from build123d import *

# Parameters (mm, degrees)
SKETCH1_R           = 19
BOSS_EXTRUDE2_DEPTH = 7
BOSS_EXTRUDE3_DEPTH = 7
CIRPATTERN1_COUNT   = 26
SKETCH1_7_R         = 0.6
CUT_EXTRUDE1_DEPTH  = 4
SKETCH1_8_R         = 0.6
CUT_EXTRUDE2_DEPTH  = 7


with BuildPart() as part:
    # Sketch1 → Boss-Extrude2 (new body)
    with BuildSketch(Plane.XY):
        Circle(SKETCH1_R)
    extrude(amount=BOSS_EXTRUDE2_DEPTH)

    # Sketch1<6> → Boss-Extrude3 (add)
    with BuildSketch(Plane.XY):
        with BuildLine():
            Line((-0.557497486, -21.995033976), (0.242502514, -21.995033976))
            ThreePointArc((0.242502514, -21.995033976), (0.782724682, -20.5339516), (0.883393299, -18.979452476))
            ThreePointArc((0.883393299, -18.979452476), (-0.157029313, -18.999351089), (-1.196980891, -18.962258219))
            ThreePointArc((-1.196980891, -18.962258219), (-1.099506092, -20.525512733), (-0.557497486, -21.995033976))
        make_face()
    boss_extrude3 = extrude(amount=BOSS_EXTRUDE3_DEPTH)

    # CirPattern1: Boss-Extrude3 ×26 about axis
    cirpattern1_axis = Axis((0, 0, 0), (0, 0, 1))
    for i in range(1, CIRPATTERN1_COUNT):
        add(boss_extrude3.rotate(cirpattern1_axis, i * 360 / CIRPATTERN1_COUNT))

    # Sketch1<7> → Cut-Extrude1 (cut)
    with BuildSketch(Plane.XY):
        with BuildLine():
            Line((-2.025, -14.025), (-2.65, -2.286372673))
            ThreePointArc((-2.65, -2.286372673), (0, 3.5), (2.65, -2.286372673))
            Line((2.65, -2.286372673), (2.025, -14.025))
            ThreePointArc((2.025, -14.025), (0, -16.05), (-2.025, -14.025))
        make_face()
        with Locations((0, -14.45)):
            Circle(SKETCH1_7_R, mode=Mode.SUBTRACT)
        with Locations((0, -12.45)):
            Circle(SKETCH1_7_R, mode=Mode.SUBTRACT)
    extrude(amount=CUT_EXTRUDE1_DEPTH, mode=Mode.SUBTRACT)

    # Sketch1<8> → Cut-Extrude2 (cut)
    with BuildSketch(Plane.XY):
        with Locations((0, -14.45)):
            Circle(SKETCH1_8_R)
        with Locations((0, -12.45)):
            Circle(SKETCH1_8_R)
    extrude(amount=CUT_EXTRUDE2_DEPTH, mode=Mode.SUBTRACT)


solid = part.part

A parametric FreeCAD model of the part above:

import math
import FreeCAD as App
import Part
import Sketcher

doc = App.newDocument("Part")
body = doc.addObject("PartDesign::Body", "Body")

sketch1 = body.newObject("Sketcher::SketchObject", "Sketch")
sketch1.AttachmentSupport = (doc.getObject("XY_Plane"), [""])
sketch1.MapMode = "FlatFace"
sketch1.addGeometry(Part.Circle(App.Vector(0, 0, 0), App.Vector(0, 0, 1), 19), False)
sketch1.addConstraint([
    Sketcher.Constraint("Coincident", 0, 3, -1, 1),
    Sketcher.Constraint("Diameter", 0, 38.0),
])
pad1 = body.newObject("PartDesign::Pad", "Pad")
pad1.Profile = sketch1
pad1.Length = 7

sketch2 = body.newObject("Sketcher::SketchObject", "Sketch001")
sketch2.AttachmentSupport = (doc.getObject("XY_Plane"), [""])
sketch2.MapMode = "FlatFace"
sketch2.addGeometry([
    Part.LineSegment(App.Vector(-0.6, -22, 0), App.Vector(0.2, -22, 0)),
    Part.ArcOfCircle(Part.Circle(App.Vector(-4.5, -19.4, 0), App.Vector(0, 0, 1), 5.4), math.radians(-29), math.radians(5)),
    Part.ArcOfCircle(Part.Circle(App.Vector(0, 0, 0), App.Vector(0, 0, 1), 19), math.radians(-93.61), math.radians(-87.34)),
    Part.ArcOfCircle(Part.Circle(App.Vector(4.2, -19.4, 0), App.Vector(0, 0, 1), 5.4), math.radians(175), math.radians(209)),
], False)
sketch2.addConstraint([
    Sketcher.Constraint("Coincident", 0, 2, 1, 1),
    Sketcher.Constraint("Coincident", 1, 2, 2, 2),
    Sketcher.Constraint("Coincident", 2, 1, 3, 1),
    Sketcher.Constraint("Coincident", 3, 2, 0, 1),
    Sketcher.Constraint("Horizontal", 0),
    Sketcher.Constraint("Coincident", 2, 3, -1, 1),
    Sketcher.Constraint("Equal", 1, 3),
    Sketcher.Constraint("Horizontal", 1, 3, 3, 3),
    Sketcher.Constraint("Radius", 2, 19.0),
    Sketcher.Constraint("Radius", 1, 5.4),
    Sketcher.Constraint("DistanceX", 0, 1, 0, 2, 0.8),
    Sketcher.Constraint("DistanceX", 1, 3, 1, 2, 5.382698),
    Sketcher.Constraint("DistanceY", 1, 3, -1, 1, 19.411381),
    Sketcher.Constraint("DistanceX", -1, 1, 3, 3, 4.18431),
])
pad2 = body.newObject("PartDesign::Pad", "Pad001")
pad2.Profile = sketch2
pad2.Length = 7
doc.recompute()

polarpattern = body.newObject("PartDesign::PolarPattern", "PolarPattern")
polarpattern.Originals = [pad2]
polarpattern.Axis = (doc.getObject("Z_Axis"), [""])
polarpattern.Angle = 360
polarpattern.Occurrences = 26
body.Tip = polarpattern

sketch3 = body.newObject("Sketcher::SketchObject", "Sketch002")
sketch3.AttachmentSupport = (doc.getObject("XY_Plane"), [""])
sketch3.MapMode = "FlatFace"
sketch3.addGeometry([
    Part.LineSegment(App.Vector(-2.6, -2.3, 0), App.Vector(-2, -14, 0)),
    Part.ArcOfCircle(Part.Circle(App.Vector(0, -14, 0), App.Vector(0, 0, 1), 2), math.radians(180), math.radians(360)),
    Part.LineSegment(App.Vector(2, -14, 0), App.Vector(2.6, -2.3, 0)),
    Part.ArcOfCircle(Part.Circle(App.Vector(0, 0, 0), App.Vector(0, 0, 1), 3.5), math.radians(-41), math.radians(221)),
    Part.Circle(App.Vector(0, -14.4, 0), App.Vector(0, 0, 1), 0.6),
    Part.Circle(App.Vector(0, -12.4, 0), App.Vector(0, 0, 1), 0.6),
], False)
sketch3.addConstraint([
    Sketcher.Constraint("Coincident", 0, 2, 1, 1),
    Sketcher.Constraint("Coincident", 1, 2, 2, 1),
    Sketcher.Constraint("Coincident", 2, 2, 3, 1),
    Sketcher.Constraint("Coincident", 3, 2, 0, 1),
    Sketcher.Constraint("Coincident", 3, 3, -1, 1),
    Sketcher.Constraint("Equal", 4, 5),
    Sketcher.Constraint("Symmetric", 0, 2, 1, 2, -2),
    Sketcher.Constraint("PointOnObject", 4, 3, -2),
    Sketcher.Constraint("PointOnObject", 5, 3, -2),
    Sketcher.Constraint("Horizontal", 1, 3, 0, 2),
    Sketcher.Constraint("Horizontal", 2, 2, 3, 2),
    Sketcher.Constraint("Diameter", 4, 1.2),
    Sketcher.Constraint("Radius", 3, 3.5),
    Sketcher.Constraint("Radius", 1, 2.025),
    Sketcher.Constraint("DistanceY", 4, 3, 5, 3, 2.0),
    Sketcher.Constraint("DistanceX", 3, 2, 2, 2, 5.3),
    Sketcher.Constraint("DistanceY", 4, 3, -1, 1, 14.45),
    Sketcher.Constraint("DistanceY", 1, 3, -1, 1, 14.025),
])
pocket1 = body.newObject("PartDesign::Pocket", "Pocket")
pocket1.Profile = sketch3
pocket1.Length = 4
pocket1.Reversed = True

sketch4 = body.newObject("Sketcher::SketchObject", "Sketch003")
sketch4.AttachmentSupport = (doc.getObject("XY_Plane"), [""])
sketch4.MapMode = "FlatFace"
sketch4.addGeometry([
    Part.Circle(App.Vector(0, -14.4, 0), App.Vector(0, 0, 1), 0.6),
    Part.Circle(App.Vector(0, -12.4, 0), App.Vector(0, 0, 1), 0.6),
], False)
sketch4.addConstraint([
    Sketcher.Constraint("Equal", 0, 1),
    Sketcher.Constraint("PointOnObject", 0, 3, -2),
    Sketcher.Constraint("PointOnObject", 1, 3, -2),
    Sketcher.Constraint("Diameter", 0, 1.2),
    Sketcher.Constraint("DistanceY", 0, 3, 1, 3, 2.0),
    Sketcher.Constraint("DistanceY", 0, 3, -1, 1, 14.45),
])
pocket2 = body.newObject("PartDesign::Pocket", "Pocket001")
pocket2.Profile = sketch4
pocket2.Length = 7
pocket2.Reversed = True

doc.recompute()
